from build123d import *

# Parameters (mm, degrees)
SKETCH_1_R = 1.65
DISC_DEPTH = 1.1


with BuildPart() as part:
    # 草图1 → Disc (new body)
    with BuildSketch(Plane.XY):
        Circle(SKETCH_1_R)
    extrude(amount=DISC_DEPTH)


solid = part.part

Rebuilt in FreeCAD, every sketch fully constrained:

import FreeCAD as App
import Part
import Sketcher

doc = App.newDocument("Part")
params = doc.addObject("Spreadsheet::Sheet", "Params")
for row, (alias, value) in enumerate([
    ("sketch1_diameter", "3.3 mm"),
    ("pad1_length", "1.1 mm"),
], start=1):
    params.set(f"A{row}", alias)
    params.set(f"B{row}", "=" + value)
    params.setAlias(f"B{row}", alias)

body = doc.addObject("PartDesign::Body", "Body")

# Sketch on XY plane
sketch1 = doc.addObject("Sketcher::SketchObject", "Sketch")
body.addObject(sketch1)
sketch1.AttachmentSupport = (doc.XY_Plane, [""])
sketch1.MapMode = "FlatFace"
sketch1.addGeometry(Part.Circle(App.Vector(0, 0, 0), App.Vector(0, 0, 1), 1.6), False)
sketch1.addConstraint(Sketcher.Constraint("Coincident", 0, 3, -1, 1))
sketch1.addConstraint(Sketcher.Constraint("Diameter", 0, 3.3))
sketch1.setExpression("Constraints[1]", "Params.sketch1_diameter")
pad1 = doc.addObject("PartDesign::Pad", "Pad")
body.addObject(pad1)
pad1.Profile = sketch1
pad1.setExpression("Length", "Params.pad1_length")

doc.recompute()
